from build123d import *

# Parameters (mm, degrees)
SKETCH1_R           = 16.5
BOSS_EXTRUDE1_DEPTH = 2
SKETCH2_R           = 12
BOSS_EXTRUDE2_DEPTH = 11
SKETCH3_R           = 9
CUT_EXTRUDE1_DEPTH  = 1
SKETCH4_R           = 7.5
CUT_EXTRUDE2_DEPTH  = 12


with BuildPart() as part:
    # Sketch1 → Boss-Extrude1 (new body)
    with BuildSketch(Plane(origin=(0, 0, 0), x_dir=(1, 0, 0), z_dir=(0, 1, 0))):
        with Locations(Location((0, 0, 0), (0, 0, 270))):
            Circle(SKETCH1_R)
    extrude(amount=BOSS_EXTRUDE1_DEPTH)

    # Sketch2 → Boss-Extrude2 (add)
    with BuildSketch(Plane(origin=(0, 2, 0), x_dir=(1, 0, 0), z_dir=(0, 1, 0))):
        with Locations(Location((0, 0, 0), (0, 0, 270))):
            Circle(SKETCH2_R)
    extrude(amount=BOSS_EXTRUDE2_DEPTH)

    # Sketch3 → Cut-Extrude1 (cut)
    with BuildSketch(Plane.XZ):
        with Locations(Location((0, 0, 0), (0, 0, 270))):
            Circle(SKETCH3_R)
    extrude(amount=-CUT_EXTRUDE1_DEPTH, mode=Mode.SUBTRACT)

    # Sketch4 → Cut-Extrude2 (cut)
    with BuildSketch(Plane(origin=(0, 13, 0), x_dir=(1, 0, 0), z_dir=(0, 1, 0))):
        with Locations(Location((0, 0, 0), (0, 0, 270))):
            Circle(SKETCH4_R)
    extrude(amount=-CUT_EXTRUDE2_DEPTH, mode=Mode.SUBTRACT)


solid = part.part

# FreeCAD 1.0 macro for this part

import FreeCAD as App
import Part
import Sketcher

V = App.Vector

doc = App.newDocument("Part")
body = doc.addObject("PartDesign::Body", "Body")

# Sketch on XZ plane
sketch1 = doc.addObject("Sketcher::SketchObject", "Sketch")
body.addObject(sketch1)
sketch1.AttachmentSupport = (doc.XZ_Plane, [""])
sketch1.MapMode = "FlatFace"
sketch1.addGeometry(Part.Circle(V(0, 0, 0), V(0, 0, 1), 16), False)
sketch1.addConstraint([
    Sketcher.Constraint("Coincident", 0, 3, -1, 1),
    Sketcher.Constraint("Diameter", 0, 33.0),
])
pad1 = doc.addObject("PartDesign::Pad", "Pad")
body.addObject(pad1)
pad1.Profile = sketch1
pad1.Length = 2
pad1.Reversed = True

# Sketch on XZ plane
sketch2 = doc.addObject("Sketcher::SketchObject", "Sketch001")
body.addObject(sketch2)
sketch2.AttachmentSupport = (doc.XZ_Plane, [""])
sketch2.MapMode = "FlatFace"
sketch2.AttachmentOffset = App.Placement(V(0, 0, -2), App.Rotation())
sketch2.addGeometry(Part.Circle(V(0, 0, 0), V(0, 0, 1), 12), False)
sketch2.addConstraint([
    Sketcher.Constraint("Coincident", 0, 3, -1, 1),
    Sketcher.Constraint("Diameter", 0, 24.0),
])
pad2 = doc.addObject("PartDesign::Pad", "Pad001")
body.addObject(pad2)
pad2.Profile = sketch2
pad2.Length = 11
pad2.Reversed = True

# Sketch on XZ plane
sketch3 = doc.addObject("Sketcher::SketchObject", "Sketch002")
body.addObject(sketch3)
sketch3.AttachmentSupport = (doc.XZ_Plane, [""])
sketch3.MapMode = "FlatFace"
sketch3.addGeometry(Part.Circle(V(0, 0, 0), V(0, 0, 1), 9), False)
sketch3.addConstraint([
    Sketcher.Constraint("Coincident", 0, 3, -1, 1),
    Sketcher.Constraint("Diameter", 0, 18.0),
])
pocket1 = doc.addObject("PartDesign::Pocket", "Pocket")
body.addObject(pocket1)
pocket1.Profile = sketch3
pocket1.Length = 1

# Sketch on XZ plane
sketch4 = doc.addObject("Sketcher::SketchObject", "Sketch003")
body.addObject(sketch4)
sketch4.AttachmentSupport = (doc.XZ_Plane, [""])
sketch4.MapMode = "FlatFace"
sketch4.AttachmentOffset = App.Placement(V(0, 0, -13), App.Rotation())
sketch4.addGeometry(Part.Circle(V(0, 0, 0), V(0, 0, 1), 8), False)
sketch4.addConstraint([
    Sketcher.Constraint("Coincident", 0, 3, -1, 1),
    Sketcher.Constraint("Diameter", 0, 15.0),
])
pocket2 = doc.addObject("PartDesign::Pocket", "Pocket001")
body.addObject(pocket2)
pocket2.Profile = sketch4
pocket2.Length = 12
pocket2.Reversed = True

doc.recompute()
